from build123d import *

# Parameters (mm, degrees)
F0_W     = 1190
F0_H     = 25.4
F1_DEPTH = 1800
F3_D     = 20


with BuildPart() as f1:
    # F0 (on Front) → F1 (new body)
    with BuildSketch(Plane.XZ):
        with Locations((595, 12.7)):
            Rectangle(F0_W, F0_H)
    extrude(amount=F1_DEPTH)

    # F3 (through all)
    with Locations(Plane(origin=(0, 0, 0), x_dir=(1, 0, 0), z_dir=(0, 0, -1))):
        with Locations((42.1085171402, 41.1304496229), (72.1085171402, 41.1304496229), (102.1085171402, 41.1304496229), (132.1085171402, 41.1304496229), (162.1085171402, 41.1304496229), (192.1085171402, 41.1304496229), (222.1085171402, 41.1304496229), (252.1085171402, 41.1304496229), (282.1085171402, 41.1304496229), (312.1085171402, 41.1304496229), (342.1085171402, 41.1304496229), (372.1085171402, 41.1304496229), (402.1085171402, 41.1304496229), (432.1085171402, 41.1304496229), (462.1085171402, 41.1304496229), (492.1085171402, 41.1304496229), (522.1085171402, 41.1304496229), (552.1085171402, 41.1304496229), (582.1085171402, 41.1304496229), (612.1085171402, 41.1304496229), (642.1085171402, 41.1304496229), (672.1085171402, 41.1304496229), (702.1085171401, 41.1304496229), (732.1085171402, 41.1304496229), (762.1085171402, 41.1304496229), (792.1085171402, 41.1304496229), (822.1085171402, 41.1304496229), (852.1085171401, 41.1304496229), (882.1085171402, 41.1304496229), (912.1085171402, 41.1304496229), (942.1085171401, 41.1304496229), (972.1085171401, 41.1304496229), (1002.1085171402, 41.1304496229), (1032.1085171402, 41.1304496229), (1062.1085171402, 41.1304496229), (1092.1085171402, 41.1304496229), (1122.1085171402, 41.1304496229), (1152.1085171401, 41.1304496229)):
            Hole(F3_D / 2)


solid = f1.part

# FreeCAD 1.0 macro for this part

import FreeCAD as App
import Part
import Sketcher
from FreeCAD import Vector


def add_polygon(sketch, points):
    """Adds a closed chain of lines whose ends are joined by coincident constraints."""
    first, n = sketch.GeometryCount, len(points)
    for a, b in zip(points, points[1:] + points[:1]):
        sketch.addGeometry(Part.LineSegment(App.Vector(*a, 0), App.Vector(*b, 0)), False)
    for i in range(n):
        sketch.addConstraint(Sketcher.Constraint("Coincident", first + i, 2, first + (i + 1) % n, 1))

doc = App.newDocument("Part")
body = doc.addObject("PartDesign::Body", "Body")

sketch1 = doc.addObject("Sketcher::SketchObject", "Sketch")
body.addObject(sketch1)
sketch1.AttachmentSupport = (doc.XZ_Plane, [""])
sketch1.MapMode = "FlatFace"
add_polygon(sketch1, [(0, 25), (0, 0), (1190, 0), (1190, 25)])
sketch1.addConstraint([
    Sketcher.Constraint("Vertical", 0),
    Sketcher.Constraint("Horizontal", 1),
    Sketcher.Constraint("Vertical", 2),
    Sketcher.Constraint("Horizontal", 3),
    Sketcher.Constraint("Coincident", 0, 2, -1, 1),
    Sketcher.Constraint("DistanceX", 1, 1, 1, 2, 1190.0),
    Sketcher.Constraint("DistanceY", 0, 2, 0, 1, 25.4),
])
pad1 = doc.addObject("PartDesign::Pad", "Pad")
body.addObject(pad1)
pad1.Profile = sketch1
pad1.Length = 1800

sketch2 = doc.addObject("Sketcher::SketchObject", "Sketch001")
body.addObject(sketch2)
sketch2.AttachmentSupport = (doc.XY_Plane, [""])
sketch2.MapMode = "FlatFace"
sketch2.addGeometry([
    Part.Circle(Vector(42, -41, 0), Vector(0, 0, 1), 10),
    Part.Circle(Vector(72, -41, 0), Vector(0, 0, 1), 10),
    Part.Circle(Vector(102, -41, 0), Vector(0, 0, 1), 10),
    Part.Circle(Vector(132, -41, 0), Vector(0, 0, 1), 10),
    Part.Circle(Vector(162, -41, 0), Vector(0, 0, 1), 10),
    Part.Circle(Vector(192, -41, 0), Vector(0, 0, 1), 10),
    Part.Circle(Vector(222, -41, 0), Vector(0, 0, 1), 10),
    Part.Circle(Vector(252, -41, 0), Vector(0, 0, 1), 10),
    Part.Circle(Vector(282, -41, 0), Vector(0, 0, 1), 10),
    Part.Circle(Vector(312, -41, 0), Vector(0, 0, 1), 10),
    Part.Circle(Vector(342, -41, 0), Vector(0, 0, 1), 10),
    Part.Circle(Vector(372, -41, 0), Vector(0, 0, 1), 10),
    Part.Circle(Vector(402, -41, 0), Vector(0, 0, 1), 10),
    Part.Circle(Vector(432, -41, 0), Vector(0, 0, 1), 10),
    Part.Circle(Vector(462, -41, 0), Vector(0, 0, 1), 10),
    Part.Circle(Vector(492, -41, 0), Vector(0, 0, 1), 10),
    Part.Circle(Vector(522, -41, 0), Vector(0, 0, 1), 10),
    Part.Circle(Vector(552, -41, 0), Vector(0, 0, 1), 10),
    Part.Circle(Vector(582, -41, 0), Vector(0, 0, 1), 10),
    Part.Circle(Vector(612, -41, 0), Vector(0, 0, 1), 10),
    Part.Circle(Vector(642, -41, 0), Vector(0, 0, 1), 10),
    Part.Circle(Vector(672, -41, 0), Vector(0, 0, 1), 10),
    Part.Circle(Vector(702, -41, 0), Vector(0, 0, 1), 10),
    Part.Circle(Vector(732, -41, 0), Vector(0, 0, 1), 10),
    Part.Circle(Vector(762, -41, 0), Vector(0, 0, 1), 10),
    Part.Circle(Vector(792, -41, 0), Vector(0, 0, 1), 10),
    Part.Circle(Vector(822, -41, 0), Vector(0, 0, 1), 10),
    Part.Circle(Vector(852, -41, 0), Vector(0, 0, 1), 10),
    Part.Circle(Vector(882, -41, 0), Vector(0, 0, 1), 10),
    Part.Circle(Vector(912, -41, 0), Vector(0, 0, 1), 10),
    Part.Circle(Vector(942, -41, 0), Vector(0, 0, 1), 10),
    Part.Circle(Vector(972, -41, 0), Vector(0, 0, 1), 10),
    Part.Circle(Vector(1002, -41, 0), Vector(0, 0, 1), 10),
    Part.Circle(Vector(1032, -41, 0), Vector(0, 0, 1), 10),
    Part.Circle(Vector(1062, -41, 0), Vector(0, 0, 1), 10),
    Part.Circle(Vector(1092, -41, 0), Vector(0, 0, 1), 10),
    Part.Circle(Vector(1122, -41, 0), Vector(0, 0, 1), 10),
    Part.Circle(Vector(1152, -41, 0), Vector(0, 0, 1), 10),
], False)
sketch2.addConstraint([
    Sketcher.Constraint("Equal", 0, 1),
    Sketcher.Constraint("Equal", 1, 2),
    Sketcher.Constraint("Equal", 2, 3),
    Sketcher.Constraint("Equal", 3, 4),
    Sketcher.Constraint("Equal", 4, 5),
    Sketcher.Constraint("Equal", 5, 6),
    Sketcher.Constraint("Equal", 6, 7),
    Sketcher.Constraint("Equal", 7, 8),
    Sketcher.Constraint("Equal", 8, 9),
    Sketcher.Constraint("Equal", 9, 10),
    Sketcher.Constraint("Equal", 10, 11),
    Sketcher.Constraint("Equal", 11, 12),
    Sketcher.Constraint("Equal", 12, 13),
    Sketcher.Constraint("Equal", 13, 14),
    Sketcher.Constraint("Equal", 14, 15),
    Sketcher.Constraint("Equal", 15, 16),
    Sketcher.Constraint("Equal", 16, 17),
    Sketcher.Constraint("Equal", 17, 18),
    Sketcher.Constraint("Equal", 18, 19),
    Sketcher.Constraint("Equal", 19, 20),
    Sketcher.Constraint("Equal", 20, 21),
    Sketcher.Constraint("Equal", 21, 22),
    Sketcher.Constraint("Equal", 22, 23),
    Sketcher.Constraint("Equal", 23, 24),
    Sketcher.Constraint("Equal", 24, 25),
    Sketcher.Constraint("Equal", 25, 26),
    Sketcher.Constraint("Equal", 26, 27),
    Sketcher.Constraint("Equal", 27, 28),
    Sketcher.Constraint("Equal", 28, 29),
    Sketcher.Constraint("Equal", 29, 30),
    Sketcher.Constraint("Equal", 30, 31),
    Sketcher.Constraint("Equal", 31, 32),
    Sketcher.Constraint("Equal", 32, 33),
    Sketcher.Constraint("Equal", 33, 34),
    Sketcher.Constraint("Equal", 34, 35),
    Sketcher.Constraint("Equal", 35, 36),
    Sketcher.Constraint("Equal", 36, 37),
    Sketcher.Constraint("Horizontal", 0, 3, 1, 3),
    Sketcher.Constraint("Horizontal", 1, 3, 2, 3),
    Sketcher.Constraint("Horizontal", 2, 3, 3, 3),
    Sketcher.Constraint("Horizontal", 3, 3, 4, 3),
    Sketcher.Constraint("Horizontal", 4, 3, 5, 3),
    Sketcher.Constraint("Horizontal", 5, 3, 6, 3),
    Sketcher.Constraint("Horizontal", 6, 3, 7, 3),
    Sketcher.Constraint("Horizontal", 7, 3, 8, 3),
    Sketcher.Constraint("Horizontal", 8, 3, 9, 3),
    Sketcher.Constraint("Horizontal", 9, 3, 10, 3),
    Sketcher.Constraint("Horizontal", 10, 3, 11, 3),
    Sketcher.Constraint("Horizontal", 11, 3, 12, 3),
    Sketcher.Constraint("Horizontal", 12, 3, 13, 3),
    Sketcher.Constraint("Horizontal", 13, 3, 14, 3),
    Sketcher.Constraint("Horizontal", 14, 3, 15, 3),
    Sketcher.Constraint("Horizontal", 15, 3, 16, 3),
    Sketcher.Constraint("Horizontal", 16, 3, 17, 3),
    Sketcher.Constraint("Horizontal", 17, 3, 18, 3),
    Sketcher.Constraint("Horizontal", 18, 3, 19, 3),
    Sketcher.Constraint("Horizontal", 19, 3, 20, 3),
    Sketcher.Constraint("Horizontal", 20, 3, 21, 3),
    Sketcher.Constraint("Horizontal", 21, 3, 22, 3),
    Sketcher.Constraint("Horizontal", 22, 3, 23, 3),
    Sketcher.Constraint("Horizontal", 23, 3, 24, 3),
    Sketcher.Constraint("Horizontal", 24, 3, 25, 3),
    Sketcher.Constraint("Horizontal", 25, 3, 26, 3),
    Sketcher.Constraint("Horizontal", 26, 3, 27, 3),
    Sketcher.Constraint("Horizontal", 27, 3, 28, 3),
    Sketcher.Constraint("Horizontal", 28, 3, 29, 3),
    Sketcher.Constraint("Horizontal", 29, 3, 30, 3),
    Sketcher.Constraint("Horizontal", 30, 3, 31, 3),
    Sketcher.Constraint("Horizontal", 31, 3, 32, 3),
    Sketcher.Constraint("Horizontal", 32, 3, 33, 3),
    Sketcher.Constraint("Horizontal", 33, 3, 34, 3),
    Sketcher.Constraint("Horizontal", 34, 3, 35, 3),
    Sketcher.Constraint("Horizontal", 35, 3, 36, 3),
    Sketcher.Constraint("Horizontal", 36, 3, 37, 3),
    Sketcher.Constraint("Diameter", 0, 20.0),
    Sketcher.Constraint("DistanceX", 0, 3, 1, 3, 30.0),
    Sketcher.Constraint("DistanceX", 1, 3, 2, 3, 30.0),
    Sketcher.Constraint("DistanceX", 2, 3, 3, 3, 30.0),
    Sketcher.Constraint("DistanceX", 3, 3, 4, 3, 30.0),
    Sketcher.Constraint("DistanceX", 4, 3, 5, 3, 30.0),
    Sketcher.Constraint("DistanceX", 5, 3, 6, 3, 30.0),
    Sketcher.Constraint("DistanceX", 6, 3, 7, 3, 30.0),
    Sketcher.Constraint("DistanceX", 7, 3, 8, 3, 30.0),
    Sketcher.Constraint("DistanceX", 8, 3, 9, 3, 30.0),
    Sketcher.Constraint("DistanceX", 9, 3, 10, 3, 30.0),
    Sketcher.Constraint("DistanceX", 10, 3, 11, 3, 30.0),
    Sketcher.Constraint("DistanceX", 11, 3, 12, 3, 30.0),
    Sketcher.Constraint("DistanceX", 12, 3, 13, 3, 30.0),
    Sketcher.Constraint("DistanceX", 13, 3, 14, 3, 30.0),
    Sketcher.Constraint("DistanceX", 14, 3, 15, 3, 30.0),
    Sketcher.Constraint("DistanceX", 15, 3, 16, 3, 30.0),
    Sketcher.Constraint("DistanceX", 16, 3, 17, 3, 30.0),
    Sketcher.Constraint("DistanceX", 17, 3, 18, 3, 30.0),
    Sketcher.Constraint("DistanceX", 18, 3, 19, 3, 30.0),
    Sketcher.Constraint("DistanceX", 19, 3, 20, 3, 30.0),
    Sketcher.Constraint("DistanceX", 20, 3, 21, 3, 30.0),
    Sketcher.Constraint("DistanceX", 21, 3, 22, 3, 30.0),
    Sketcher.Constraint("DistanceX", 22, 3, 23, 3, 30.0),
    Sketcher.Constraint("DistanceX", 23, 3, 24, 3, 30.0),
    Sketcher.Constraint("DistanceX", 24, 3, 25, 3, 30.0),
    Sketcher.Constraint("DistanceX", 25, 3, 26, 3, 30.0),
    Sketcher.Constraint("DistanceX", 26, 3, 27, 3, 30.0),
    Sketcher.Constraint("DistanceX", 27, 3, 28, 3, 30.0),
    Sketcher.Constraint("DistanceX", 28, 3, 29, 3, 30.0),
    Sketcher.Constraint("DistanceX", 29, 3, 30, 3, 30.0),
    Sketcher.Constraint("DistanceX", 30, 3, 31, 3, 30.0),
    Sketcher.Constraint("DistanceX", 31, 3, 32, 3, 30.0),
    Sketcher.Constraint("DistanceX", 32, 3, 33, 3, 30.0),
    Sketcher.Constraint("DistanceX", 33, 3, 34, 3, 30.0),
    Sketcher.Constraint("DistanceX", 34, 3, 35, 3, 30.0),
    Sketcher.Constraint("DistanceX", 35, 3, 36, 3, 30.0),
    Sketcher.Constraint("DistanceX", 36, 3, 37, 3, 30.0),
    Sketcher.Constraint("DistanceY", 0, 3, -1, 1, 41.13045),
    Sketcher.Constraint("DistanceX", -1, 1, 0, 3, 42.108517),
])
doc.recompute()
hole = doc.addObject("PartDesign::Hole", "Hole")
body.addObject(hole)
hole.Profile = sketch2
hole.ThreadType = "None"
hole.Diameter = 20
hole.DepthType = "ThroughAll"
hole.Reversed = True

doc.recompute()
